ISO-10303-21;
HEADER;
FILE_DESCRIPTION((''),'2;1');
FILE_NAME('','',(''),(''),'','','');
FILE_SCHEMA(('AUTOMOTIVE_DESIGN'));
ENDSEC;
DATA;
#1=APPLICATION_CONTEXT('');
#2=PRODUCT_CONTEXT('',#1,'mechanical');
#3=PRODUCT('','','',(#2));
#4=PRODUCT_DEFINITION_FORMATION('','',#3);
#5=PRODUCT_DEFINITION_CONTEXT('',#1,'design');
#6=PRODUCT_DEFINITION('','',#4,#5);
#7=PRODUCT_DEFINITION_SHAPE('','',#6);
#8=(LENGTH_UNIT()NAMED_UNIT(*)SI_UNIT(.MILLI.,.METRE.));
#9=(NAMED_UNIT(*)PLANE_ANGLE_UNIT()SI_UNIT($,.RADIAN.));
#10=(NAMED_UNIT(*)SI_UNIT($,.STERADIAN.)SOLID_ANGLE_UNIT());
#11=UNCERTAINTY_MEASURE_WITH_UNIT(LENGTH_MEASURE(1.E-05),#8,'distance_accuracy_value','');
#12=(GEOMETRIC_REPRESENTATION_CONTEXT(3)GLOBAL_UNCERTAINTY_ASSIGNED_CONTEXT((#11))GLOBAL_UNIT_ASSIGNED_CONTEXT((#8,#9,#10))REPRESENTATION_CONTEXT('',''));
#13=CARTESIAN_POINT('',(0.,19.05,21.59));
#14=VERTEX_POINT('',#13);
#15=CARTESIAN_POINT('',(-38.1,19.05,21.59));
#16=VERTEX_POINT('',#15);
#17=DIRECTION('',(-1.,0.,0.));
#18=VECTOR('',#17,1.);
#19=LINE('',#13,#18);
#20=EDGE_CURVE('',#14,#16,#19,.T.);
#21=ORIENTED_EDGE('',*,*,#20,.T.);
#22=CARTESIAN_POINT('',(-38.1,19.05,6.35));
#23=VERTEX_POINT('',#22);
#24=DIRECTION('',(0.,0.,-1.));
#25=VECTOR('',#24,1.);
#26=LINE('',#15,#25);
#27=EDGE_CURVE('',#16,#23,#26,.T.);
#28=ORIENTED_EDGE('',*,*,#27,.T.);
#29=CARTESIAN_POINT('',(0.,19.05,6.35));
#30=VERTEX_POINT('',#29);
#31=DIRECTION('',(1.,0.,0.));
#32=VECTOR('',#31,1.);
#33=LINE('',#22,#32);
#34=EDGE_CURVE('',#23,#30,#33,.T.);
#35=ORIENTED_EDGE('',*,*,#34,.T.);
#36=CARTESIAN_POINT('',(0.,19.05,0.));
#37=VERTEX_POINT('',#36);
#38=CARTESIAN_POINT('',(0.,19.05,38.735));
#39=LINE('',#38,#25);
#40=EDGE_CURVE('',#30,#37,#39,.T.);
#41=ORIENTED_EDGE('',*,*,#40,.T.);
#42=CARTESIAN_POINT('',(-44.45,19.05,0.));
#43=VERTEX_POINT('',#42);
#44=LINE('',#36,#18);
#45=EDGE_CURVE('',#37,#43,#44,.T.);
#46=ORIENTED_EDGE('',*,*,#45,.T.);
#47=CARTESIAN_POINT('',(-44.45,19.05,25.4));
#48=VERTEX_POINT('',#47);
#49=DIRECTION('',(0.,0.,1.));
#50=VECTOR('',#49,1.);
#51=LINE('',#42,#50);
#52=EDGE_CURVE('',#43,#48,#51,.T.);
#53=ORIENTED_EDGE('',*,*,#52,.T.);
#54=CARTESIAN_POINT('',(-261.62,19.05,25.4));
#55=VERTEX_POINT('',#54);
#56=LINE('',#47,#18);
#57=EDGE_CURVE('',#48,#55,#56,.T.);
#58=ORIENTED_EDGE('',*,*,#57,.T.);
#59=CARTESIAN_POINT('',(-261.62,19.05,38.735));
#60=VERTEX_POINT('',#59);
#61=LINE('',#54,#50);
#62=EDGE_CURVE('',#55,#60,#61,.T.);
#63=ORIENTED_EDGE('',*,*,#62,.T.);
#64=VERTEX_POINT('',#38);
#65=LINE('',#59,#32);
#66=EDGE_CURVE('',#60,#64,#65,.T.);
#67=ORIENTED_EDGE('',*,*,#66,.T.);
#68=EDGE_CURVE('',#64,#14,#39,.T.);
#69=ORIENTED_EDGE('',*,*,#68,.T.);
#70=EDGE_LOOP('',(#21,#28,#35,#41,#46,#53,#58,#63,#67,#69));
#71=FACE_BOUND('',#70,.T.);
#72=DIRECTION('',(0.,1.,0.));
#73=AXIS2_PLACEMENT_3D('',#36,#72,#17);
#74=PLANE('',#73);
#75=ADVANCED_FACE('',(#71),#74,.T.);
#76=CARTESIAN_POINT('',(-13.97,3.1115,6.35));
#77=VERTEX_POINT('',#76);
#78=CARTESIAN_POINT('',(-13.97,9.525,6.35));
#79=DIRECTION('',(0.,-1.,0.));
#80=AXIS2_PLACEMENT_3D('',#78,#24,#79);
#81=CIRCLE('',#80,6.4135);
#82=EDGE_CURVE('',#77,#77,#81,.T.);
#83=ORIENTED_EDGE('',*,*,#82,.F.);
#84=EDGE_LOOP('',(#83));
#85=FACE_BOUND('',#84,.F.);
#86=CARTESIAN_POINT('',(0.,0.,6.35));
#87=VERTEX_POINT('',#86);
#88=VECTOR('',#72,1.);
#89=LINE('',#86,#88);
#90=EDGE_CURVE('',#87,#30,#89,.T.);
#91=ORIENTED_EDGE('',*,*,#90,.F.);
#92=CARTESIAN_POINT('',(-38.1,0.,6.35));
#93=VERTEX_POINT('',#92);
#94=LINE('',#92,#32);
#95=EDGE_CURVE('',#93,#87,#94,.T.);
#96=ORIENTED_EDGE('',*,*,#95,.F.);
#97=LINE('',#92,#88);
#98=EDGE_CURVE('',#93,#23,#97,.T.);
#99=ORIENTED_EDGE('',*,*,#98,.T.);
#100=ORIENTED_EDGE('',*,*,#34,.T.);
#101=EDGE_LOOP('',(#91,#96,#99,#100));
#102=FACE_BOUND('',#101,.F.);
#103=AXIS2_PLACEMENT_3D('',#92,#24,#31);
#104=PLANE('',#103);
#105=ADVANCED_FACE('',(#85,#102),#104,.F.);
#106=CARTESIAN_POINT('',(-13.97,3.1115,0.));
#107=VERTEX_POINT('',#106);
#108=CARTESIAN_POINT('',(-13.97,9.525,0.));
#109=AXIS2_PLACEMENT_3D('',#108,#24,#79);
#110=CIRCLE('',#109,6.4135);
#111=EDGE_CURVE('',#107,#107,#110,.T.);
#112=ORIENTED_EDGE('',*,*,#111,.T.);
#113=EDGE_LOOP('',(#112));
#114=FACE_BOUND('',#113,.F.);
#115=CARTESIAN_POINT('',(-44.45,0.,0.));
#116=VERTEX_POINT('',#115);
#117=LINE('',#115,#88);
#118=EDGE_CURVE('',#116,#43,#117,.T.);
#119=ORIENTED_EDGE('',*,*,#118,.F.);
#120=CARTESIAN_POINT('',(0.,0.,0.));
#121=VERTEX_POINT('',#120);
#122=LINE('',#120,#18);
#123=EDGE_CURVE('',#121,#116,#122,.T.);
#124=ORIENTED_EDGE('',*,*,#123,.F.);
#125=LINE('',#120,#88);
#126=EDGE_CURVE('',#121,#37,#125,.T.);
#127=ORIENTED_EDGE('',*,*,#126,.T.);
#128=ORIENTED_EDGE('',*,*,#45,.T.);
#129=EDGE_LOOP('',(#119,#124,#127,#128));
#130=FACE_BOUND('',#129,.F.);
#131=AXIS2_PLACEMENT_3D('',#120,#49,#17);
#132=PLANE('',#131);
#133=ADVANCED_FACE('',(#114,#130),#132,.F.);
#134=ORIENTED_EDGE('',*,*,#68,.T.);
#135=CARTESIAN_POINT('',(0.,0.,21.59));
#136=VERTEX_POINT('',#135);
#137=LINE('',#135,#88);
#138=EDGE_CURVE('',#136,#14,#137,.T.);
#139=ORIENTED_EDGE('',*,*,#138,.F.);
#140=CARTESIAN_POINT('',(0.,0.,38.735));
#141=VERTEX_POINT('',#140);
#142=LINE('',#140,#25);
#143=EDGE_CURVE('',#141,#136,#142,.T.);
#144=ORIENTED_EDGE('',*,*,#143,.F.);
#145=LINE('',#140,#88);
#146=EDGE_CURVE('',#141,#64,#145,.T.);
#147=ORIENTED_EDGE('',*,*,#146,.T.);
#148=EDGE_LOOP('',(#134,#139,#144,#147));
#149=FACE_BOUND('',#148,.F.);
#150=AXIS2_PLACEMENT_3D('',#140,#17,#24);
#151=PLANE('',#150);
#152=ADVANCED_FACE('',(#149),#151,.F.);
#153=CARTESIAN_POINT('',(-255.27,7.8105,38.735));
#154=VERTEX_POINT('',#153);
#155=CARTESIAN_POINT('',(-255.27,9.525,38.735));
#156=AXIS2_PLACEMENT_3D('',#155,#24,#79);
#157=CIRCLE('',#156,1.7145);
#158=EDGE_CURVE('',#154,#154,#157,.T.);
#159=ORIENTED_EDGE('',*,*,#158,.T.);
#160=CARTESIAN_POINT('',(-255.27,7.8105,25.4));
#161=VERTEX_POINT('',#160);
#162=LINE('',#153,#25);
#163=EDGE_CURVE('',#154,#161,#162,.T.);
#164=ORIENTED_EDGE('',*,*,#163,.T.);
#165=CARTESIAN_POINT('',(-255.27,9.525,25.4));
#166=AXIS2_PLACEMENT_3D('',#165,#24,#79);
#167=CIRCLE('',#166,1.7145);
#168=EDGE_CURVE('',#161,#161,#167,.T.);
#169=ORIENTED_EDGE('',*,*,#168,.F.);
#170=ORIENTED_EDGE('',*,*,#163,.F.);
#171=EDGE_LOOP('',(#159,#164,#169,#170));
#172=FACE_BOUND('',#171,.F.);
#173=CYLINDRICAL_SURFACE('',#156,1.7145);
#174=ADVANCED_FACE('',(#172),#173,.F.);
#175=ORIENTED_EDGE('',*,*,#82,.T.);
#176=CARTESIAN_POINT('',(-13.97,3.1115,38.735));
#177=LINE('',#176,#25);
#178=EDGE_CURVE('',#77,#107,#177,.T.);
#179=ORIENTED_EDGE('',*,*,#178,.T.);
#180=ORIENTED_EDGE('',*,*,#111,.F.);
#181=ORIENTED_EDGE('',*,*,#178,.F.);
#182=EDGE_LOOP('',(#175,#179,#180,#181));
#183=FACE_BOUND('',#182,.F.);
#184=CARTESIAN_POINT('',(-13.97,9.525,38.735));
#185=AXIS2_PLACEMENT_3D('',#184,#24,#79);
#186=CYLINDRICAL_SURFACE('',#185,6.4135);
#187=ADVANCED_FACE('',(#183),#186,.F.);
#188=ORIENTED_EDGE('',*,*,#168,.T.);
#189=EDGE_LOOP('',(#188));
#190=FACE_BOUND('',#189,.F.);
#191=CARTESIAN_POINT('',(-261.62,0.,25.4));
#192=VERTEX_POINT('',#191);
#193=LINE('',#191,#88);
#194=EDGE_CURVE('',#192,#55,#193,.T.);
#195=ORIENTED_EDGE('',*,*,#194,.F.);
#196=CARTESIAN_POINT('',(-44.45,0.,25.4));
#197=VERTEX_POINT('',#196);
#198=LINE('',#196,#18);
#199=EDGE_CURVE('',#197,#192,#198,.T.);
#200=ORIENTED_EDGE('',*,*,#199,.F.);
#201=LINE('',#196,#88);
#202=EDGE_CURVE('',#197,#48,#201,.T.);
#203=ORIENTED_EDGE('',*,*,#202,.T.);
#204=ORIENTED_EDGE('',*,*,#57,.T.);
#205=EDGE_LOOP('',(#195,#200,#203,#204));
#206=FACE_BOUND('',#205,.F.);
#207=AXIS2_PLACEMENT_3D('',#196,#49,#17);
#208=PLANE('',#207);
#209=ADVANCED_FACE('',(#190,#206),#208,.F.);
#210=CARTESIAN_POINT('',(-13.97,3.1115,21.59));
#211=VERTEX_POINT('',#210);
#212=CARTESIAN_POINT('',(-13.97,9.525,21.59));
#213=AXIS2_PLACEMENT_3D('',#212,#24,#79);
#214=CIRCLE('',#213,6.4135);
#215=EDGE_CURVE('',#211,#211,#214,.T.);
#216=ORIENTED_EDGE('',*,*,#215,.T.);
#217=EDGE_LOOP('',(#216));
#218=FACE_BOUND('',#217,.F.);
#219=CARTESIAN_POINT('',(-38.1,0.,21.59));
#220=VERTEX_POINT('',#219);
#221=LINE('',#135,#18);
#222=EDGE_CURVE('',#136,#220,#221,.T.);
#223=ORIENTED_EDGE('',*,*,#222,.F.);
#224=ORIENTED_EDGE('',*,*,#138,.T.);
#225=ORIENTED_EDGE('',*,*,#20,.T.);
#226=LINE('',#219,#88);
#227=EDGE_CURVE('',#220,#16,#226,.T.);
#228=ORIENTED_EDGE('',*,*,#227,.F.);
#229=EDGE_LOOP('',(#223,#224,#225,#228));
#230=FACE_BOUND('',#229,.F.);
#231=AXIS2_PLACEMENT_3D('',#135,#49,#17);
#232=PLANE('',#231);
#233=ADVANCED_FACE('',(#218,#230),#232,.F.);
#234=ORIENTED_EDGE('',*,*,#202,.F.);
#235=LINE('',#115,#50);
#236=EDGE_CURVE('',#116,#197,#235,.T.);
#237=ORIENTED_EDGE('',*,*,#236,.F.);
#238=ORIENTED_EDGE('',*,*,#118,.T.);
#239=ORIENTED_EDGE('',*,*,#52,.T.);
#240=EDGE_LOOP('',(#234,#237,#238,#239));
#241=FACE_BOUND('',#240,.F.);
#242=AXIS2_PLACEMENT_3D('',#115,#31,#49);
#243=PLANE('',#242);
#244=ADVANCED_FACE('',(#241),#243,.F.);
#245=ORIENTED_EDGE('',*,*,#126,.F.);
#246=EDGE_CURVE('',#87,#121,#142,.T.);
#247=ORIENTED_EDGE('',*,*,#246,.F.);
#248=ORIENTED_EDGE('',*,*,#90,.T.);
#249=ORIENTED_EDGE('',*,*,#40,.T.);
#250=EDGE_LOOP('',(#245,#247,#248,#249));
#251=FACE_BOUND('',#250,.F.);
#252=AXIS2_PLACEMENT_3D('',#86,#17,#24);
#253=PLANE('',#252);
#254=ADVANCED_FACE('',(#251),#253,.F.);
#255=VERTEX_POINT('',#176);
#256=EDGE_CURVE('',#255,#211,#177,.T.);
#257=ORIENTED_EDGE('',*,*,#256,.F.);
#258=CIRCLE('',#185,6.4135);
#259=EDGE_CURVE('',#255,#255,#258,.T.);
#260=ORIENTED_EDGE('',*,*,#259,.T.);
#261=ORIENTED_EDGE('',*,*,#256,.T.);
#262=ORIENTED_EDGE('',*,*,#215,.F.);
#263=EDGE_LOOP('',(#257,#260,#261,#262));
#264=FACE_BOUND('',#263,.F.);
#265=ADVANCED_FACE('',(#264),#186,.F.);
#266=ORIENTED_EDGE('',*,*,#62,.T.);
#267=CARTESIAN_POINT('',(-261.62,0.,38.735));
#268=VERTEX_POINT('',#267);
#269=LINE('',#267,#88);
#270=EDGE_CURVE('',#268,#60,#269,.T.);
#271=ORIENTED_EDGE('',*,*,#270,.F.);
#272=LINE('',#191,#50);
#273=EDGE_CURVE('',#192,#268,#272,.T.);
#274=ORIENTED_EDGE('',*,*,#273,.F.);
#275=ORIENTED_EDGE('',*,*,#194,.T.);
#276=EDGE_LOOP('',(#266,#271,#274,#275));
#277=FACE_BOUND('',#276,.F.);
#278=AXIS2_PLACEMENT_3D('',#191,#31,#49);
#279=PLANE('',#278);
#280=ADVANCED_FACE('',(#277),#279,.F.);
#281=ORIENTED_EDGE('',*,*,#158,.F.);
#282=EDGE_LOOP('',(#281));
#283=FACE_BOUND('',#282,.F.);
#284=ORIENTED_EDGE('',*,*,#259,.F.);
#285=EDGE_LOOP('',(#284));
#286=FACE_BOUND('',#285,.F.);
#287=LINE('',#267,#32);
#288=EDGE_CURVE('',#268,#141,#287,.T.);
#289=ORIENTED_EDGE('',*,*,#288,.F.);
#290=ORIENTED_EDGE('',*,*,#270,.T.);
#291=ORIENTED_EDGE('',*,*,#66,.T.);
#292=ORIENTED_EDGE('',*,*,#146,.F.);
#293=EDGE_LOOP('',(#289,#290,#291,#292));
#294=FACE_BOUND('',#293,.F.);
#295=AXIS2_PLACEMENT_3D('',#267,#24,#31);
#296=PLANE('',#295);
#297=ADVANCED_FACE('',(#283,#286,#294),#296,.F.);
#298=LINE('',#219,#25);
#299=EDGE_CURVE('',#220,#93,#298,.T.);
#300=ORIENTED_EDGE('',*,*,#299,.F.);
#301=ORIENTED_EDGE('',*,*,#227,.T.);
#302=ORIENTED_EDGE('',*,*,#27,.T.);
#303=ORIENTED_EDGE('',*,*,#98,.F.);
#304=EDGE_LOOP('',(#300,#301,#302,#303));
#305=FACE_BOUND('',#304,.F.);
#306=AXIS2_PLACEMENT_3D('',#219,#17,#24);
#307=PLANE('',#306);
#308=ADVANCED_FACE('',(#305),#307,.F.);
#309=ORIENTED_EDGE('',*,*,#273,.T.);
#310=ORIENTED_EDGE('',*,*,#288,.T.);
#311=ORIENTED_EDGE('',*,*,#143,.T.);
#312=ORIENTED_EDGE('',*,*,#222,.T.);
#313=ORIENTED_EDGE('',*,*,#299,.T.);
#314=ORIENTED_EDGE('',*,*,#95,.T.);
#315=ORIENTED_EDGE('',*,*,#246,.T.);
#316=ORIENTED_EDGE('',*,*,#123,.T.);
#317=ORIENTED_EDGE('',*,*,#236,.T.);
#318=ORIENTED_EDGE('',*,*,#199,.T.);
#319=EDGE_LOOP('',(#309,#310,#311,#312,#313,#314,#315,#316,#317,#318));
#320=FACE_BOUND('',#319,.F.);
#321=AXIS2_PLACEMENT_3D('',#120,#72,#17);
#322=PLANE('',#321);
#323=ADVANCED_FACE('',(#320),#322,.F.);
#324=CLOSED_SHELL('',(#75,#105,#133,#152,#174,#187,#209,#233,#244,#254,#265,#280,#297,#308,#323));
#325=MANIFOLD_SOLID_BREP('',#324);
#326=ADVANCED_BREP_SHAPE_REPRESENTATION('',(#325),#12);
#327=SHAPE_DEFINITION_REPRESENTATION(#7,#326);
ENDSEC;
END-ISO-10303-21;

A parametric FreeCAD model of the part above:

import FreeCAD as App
import Part
import Sketcher

V = App.Vector
Q = App.Units.Quantity


def add_polygon(sketch, points):
    """Adds a closed chain of lines whose ends are joined by coincident constraints."""
    first, n = sketch.GeometryCount, len(points)
    for a, b in zip(points, points[1:] + points[:1]):
        sketch.addGeometry(Part.LineSegment(App.Vector(*a, 0), App.Vector(*b, 0)), False)
    for i in range(n):
        sketch.addConstraint(Sketcher.Constraint("Coincident", first + i, 2, first + (i + 1) % n, 1))

doc = App.newDocument("Part")
body = doc.addObject("PartDesign::Body", "Body")

# Sketch on XZ plane
sketch1 = body.newObject("Sketcher::SketchObject", "Sketch")
sketch1.AttachmentSupport = (doc.getObject("XZ_Plane"), [""])
sketch1.MapMode = "FlatFace"
add_polygon(sketch1, [(0, 6), (0, 0), (-44, 0), (-44, 25), (-262, 25), (-262, 39), (0, 39), (0, 22), (-38, 22), (-38, 6)])  # lines 0-9
sketch1.addConstraint(Sketcher.Constraint("Vertical", 0))
sketch1.addConstraint(Sketcher.Constraint("Horizontal", 1))
sketch1.addConstraint(Sketcher.Constraint("Vertical", 2))
sketch1.addConstraint(Sketcher.Constraint("Horizontal", 3))
sketch1.addConstraint(Sketcher.Constraint("Vertical", 4))
sketch1.addConstraint(Sketcher.Constraint("Horizontal", 5))
sketch1.addConstraint(Sketcher.Constraint("Vertical", 6))
sketch1.addConstraint(Sketcher.Constraint("Horizontal", 7))
sketch1.addConstraint(Sketcher.Constraint("Vertical", 8))
sketch1.addConstraint(Sketcher.Constraint("Horizontal", 9))
sketch1.addConstraint(Sketcher.Constraint("Coincident", 0, 2, -1, 1))
sketch1.addConstraint(Sketcher.Constraint("PointOnObject", 5, 2, -2))
sketch1.addConstraint(Sketcher.Constraint("DistanceY", 2, 1, 2, 2, Q("1 in")))
sketch1.addConstraint(Sketcher.Constraint("DistanceX", 5, 1, 5, 2, Q("10.3 in")))
sketch1.addConstraint(Sketcher.Constraint("DistanceY", 8, 2, 8, 1, Q("0.6 in")))
sketch1.addConstraint(Sketcher.Constraint("DistanceX", 1, 2, 1, 1, Q("1.75 in")))
sketch1.addConstraint(Sketcher.Constraint("DistanceY", 0, 2, 0, 1, Q("0.25 in")))
sketch1.addConstraint(Sketcher.Constraint("DistanceX", 2, 2, 7, 2, Q("0.25 in")))
sketch1.addConstraint(Sketcher.Constraint("DistanceY", -1, 1, 4, 2, Q("1.525 in")))
pad1 = body.newObject("PartDesign::Pad", "Pad")
pad1.Profile = sketch1
pad1.Length = Q("0.75 in")
pad1.Reversed = True

# Sketch on XY plane
sketch2 = body.newObject("Sketcher::SketchObject", "Sketch001")
sketch2.AttachmentSupport = (doc.getObject("XY_Plane"), [""])
sketch2.MapMode = "FlatFace"
sketch2.AttachmentOffset = App.Placement(V(0, 0, 1.525 * 25.4), App.Rotation())
sketch2.addGeometry(Part.Circle(V(-14, 10, 0), V(0, 0, 1), 6), False)
sketch2.addConstraint(Sketcher.Constraint("Diameter", 0, Q("0.505 in")))
sketch2.addConstraint(Sketcher.Constraint("DistanceX", 0, 3, -1, 1, Q("0.55 in")))
sketch2.addConstraint(Sketcher.Constraint("DistanceY", -1, 1, 0, 3, Q("0.375 in")))
doc.recompute()
hole = body.newObject("PartDesign::Hole", "Hole")
hole.Profile = sketch2
hole.ThreadType = "None"
hole.Diameter = Q("0.505 in")
hole.DepthType = "ThroughAll"

# Sketch on XY plane
sketch3 = body.newObject("Sketcher::SketchObject", "Sketch002")
sketch3.AttachmentSupport = (doc.getObject("XY_Plane"), [""])
sketch3.MapMode = "FlatFace"
sketch3.AttachmentOffset = App.Placement(V(0, 0, 1.525 * 25.4), App.Rotation())
sketch3.addGeometry(Part.Circle(V(-255.3, 9.5, 0), V(0, 0, 1), 1.7), False)
sketch3.addConstraint(Sketcher.Constraint("Diameter", 0, Q("0.135 in")))
sketch3.addConstraint(Sketcher.Constraint("DistanceX", 0, 3, -1, 1, Q("10.05 in")))
sketch3.addConstraint(Sketcher.Constraint("DistanceY", -1, 1, 0, 3, Q("0.375 in")))
doc.recompute()
hole2 = body.newObject("PartDesign::Hole", "Hole001")
hole2.Profile = sketch3
hole2.ThreadType = "None"
hole2.Diameter = Q("0.135 in")
hole2.DepthType = "ThroughAll"

doc.recompute()
